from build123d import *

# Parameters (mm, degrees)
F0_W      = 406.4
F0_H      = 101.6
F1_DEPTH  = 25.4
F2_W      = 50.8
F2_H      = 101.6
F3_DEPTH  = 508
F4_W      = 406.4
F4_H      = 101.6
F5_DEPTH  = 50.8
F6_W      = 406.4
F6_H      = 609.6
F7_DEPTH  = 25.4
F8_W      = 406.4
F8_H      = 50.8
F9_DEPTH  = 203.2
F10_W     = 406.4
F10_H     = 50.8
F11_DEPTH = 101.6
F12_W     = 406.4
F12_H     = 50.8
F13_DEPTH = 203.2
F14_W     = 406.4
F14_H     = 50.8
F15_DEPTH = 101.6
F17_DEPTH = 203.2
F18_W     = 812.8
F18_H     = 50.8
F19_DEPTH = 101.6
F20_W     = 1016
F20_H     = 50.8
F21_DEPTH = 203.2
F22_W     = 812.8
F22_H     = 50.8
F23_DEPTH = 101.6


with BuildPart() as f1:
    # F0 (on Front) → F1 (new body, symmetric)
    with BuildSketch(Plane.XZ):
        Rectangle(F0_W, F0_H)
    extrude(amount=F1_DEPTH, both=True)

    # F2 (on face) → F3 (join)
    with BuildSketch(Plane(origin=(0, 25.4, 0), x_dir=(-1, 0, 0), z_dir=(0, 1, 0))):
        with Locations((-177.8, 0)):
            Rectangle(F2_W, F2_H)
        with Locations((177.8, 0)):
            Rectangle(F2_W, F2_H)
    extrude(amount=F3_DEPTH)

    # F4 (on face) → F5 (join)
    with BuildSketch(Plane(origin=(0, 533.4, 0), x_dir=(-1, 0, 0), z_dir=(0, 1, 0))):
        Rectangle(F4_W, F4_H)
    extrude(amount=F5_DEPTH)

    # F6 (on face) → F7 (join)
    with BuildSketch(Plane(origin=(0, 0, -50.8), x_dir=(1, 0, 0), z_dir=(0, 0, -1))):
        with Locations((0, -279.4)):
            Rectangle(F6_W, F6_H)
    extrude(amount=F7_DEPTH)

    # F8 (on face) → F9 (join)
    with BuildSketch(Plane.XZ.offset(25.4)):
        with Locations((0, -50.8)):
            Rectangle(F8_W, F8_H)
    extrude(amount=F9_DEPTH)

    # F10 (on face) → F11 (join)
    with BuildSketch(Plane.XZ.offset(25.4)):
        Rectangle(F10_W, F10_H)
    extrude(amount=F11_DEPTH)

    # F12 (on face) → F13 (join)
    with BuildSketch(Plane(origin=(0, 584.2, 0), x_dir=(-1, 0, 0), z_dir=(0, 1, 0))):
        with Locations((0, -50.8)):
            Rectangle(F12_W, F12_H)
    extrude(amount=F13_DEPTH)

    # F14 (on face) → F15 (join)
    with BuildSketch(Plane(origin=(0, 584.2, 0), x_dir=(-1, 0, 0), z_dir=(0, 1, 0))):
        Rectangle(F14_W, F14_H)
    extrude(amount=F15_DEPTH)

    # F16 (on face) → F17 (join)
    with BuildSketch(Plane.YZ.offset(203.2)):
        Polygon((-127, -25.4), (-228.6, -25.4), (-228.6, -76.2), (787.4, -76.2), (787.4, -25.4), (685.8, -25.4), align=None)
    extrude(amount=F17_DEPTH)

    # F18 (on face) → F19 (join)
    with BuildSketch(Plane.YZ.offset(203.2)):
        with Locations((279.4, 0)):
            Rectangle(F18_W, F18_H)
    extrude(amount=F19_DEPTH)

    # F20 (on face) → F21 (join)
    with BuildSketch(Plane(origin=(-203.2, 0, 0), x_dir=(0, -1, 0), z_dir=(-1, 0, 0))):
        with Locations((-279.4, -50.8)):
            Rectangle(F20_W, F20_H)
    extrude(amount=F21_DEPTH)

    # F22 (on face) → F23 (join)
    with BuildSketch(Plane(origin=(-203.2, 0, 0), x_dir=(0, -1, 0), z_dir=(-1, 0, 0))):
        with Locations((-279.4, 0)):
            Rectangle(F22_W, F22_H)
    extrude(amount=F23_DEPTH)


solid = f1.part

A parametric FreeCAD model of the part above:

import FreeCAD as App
import Part
import Sketcher
from FreeCAD import Vector
Q = App.Units.Quantity


def add_polygon(sketch, points):
    """Adds a closed chain of lines whose ends are joined by coincident constraints."""
    first, n = sketch.GeometryCount, len(points)
    for a, b in zip(points, points[1:] + points[:1]):
        sketch.addGeometry(Part.LineSegment(App.Vector(*a, 0), App.Vector(*b, 0)), False)
    for i in range(n):
        sketch.addConstraint(Sketcher.Constraint("Coincident", first + i, 2, first + (i + 1) % n, 1))

doc = App.newDocument("Part")
body = doc.addObject("PartDesign::Body", "Body")

sketch1 = body.newObject("Sketcher::SketchObject", "Sketch")
sketch1.AttachmentSupport = (doc.getObject("XZ_Plane"), [""])
sketch1.MapMode = "FlatFace"
add_polygon(sketch1, [(-203, 51), (-203, -51), (203, -51), (203, 51)])
sketch1.addConstraint(Sketcher.Constraint("Vertical", 0))
sketch1.addConstraint(Sketcher.Constraint("Horizontal", 1))
sketch1.addConstraint(Sketcher.Constraint("Vertical", 2))
sketch1.addConstraint(Sketcher.Constraint("Horizontal", 3))
sketch1.addConstraint(Sketcher.Constraint("Symmetric", 0, 2, 2, 2, -1, 1))
sketch1.addConstraint(Sketcher.Constraint("DistanceX", 1, 1, 1, 2, Q("16 in")))
sketch1.addConstraint(Sketcher.Constraint("DistanceY", 0, 2, 0, 1, Q("4 in")))
pad1 = body.newObject("PartDesign::Pad", "Pad")
pad1.Profile = sketch1
pad1.Length = Q("2 in")
pad1.Midplane = True

sketch2 = body.newObject("Sketcher::SketchObject", "Sketch001")
sketch2.AttachmentSupport = (doc.getObject("XZ_Plane"), [""])
sketch2.MapMode = "FlatFace"
sketch2.AttachmentOffset = App.Placement(Vector(0, 0, -1 * 25.4), App.Rotation())
add_polygon(sketch2, [(203, 51), (203, -51), (152, -51), (152, 51)])
add_polygon(sketch2, [(-152, 51), (-152, -51), (-203, -51), (-203, 51)])
sketch2.addConstraint(Sketcher.Constraint("Vertical", 0))
sketch2.addConstraint(Sketcher.Constraint("Horizontal", 1))
sketch2.addConstraint(Sketcher.Constraint("Vertical", 2))
sketch2.addConstraint(Sketcher.Constraint("Horizontal", 3))
sketch2.addConstraint(Sketcher.Constraint("Vertical", 4))
sketch2.addConstraint(Sketcher.Constraint("Horizontal", 5))
sketch2.addConstraint(Sketcher.Constraint("Vertical", 6))
sketch2.addConstraint(Sketcher.Constraint("Horizontal", 7))
sketch2.addConstraint(Sketcher.Constraint("Symmetric", 2, 2, 4, 2, -1, 1))
sketch2.addConstraint(Sketcher.Constraint("Symmetric", 0, 2, 6, 2, -1, 1))
sketch2.addConstraint(Sketcher.Constraint("Horizontal", 1, 2, 4, 2))
sketch2.addConstraint(Sketcher.Constraint("DistanceX", 1, 2, 1, 1, Q("2 in")))
sketch2.addConstraint(Sketcher.Constraint("DistanceY", 0, 2, 0, 1, Q("4 in")))
sketch2.addConstraint(Sketcher.Constraint("DistanceX", -1, 1, 0, 2, Q("8 in")))
pad2 = body.newObject("PartDesign::Pad", "Pad001")
pad2.Profile = sketch2
pad2.Length = Q("20 in")
pad2.Reversed = True

sketch3 = body.newObject("Sketcher::SketchObject", "Sketch002")
sketch3.AttachmentSupport = (doc.getObject("XZ_Plane"), [""])
sketch3.MapMode = "FlatFace"
sketch3.AttachmentOffset = App.Placement(Vector(0, 0, -21 * 25.4), App.Rotation())
add_polygon(sketch3, [(203, 51), (203, -51), (-203, -51), (-203, 51)])
sketch3.addConstraint(Sketcher.Constraint("Vertical", 0))
sketch3.addConstraint(Sketcher.Constraint("Horizontal", 1))
sketch3.addConstraint(Sketcher.Constraint("Vertical", 2))
sketch3.addConstraint(Sketcher.Constraint("Horizontal", 3))
sketch3.addConstraint(Sketcher.Constraint("Symmetric", 0, 2, 2, 2, -1, 1))
sketch3.addConstraint(Sketcher.Constraint("DistanceX", 1, 2, 1, 1, Q("16 in")))
sketch3.addConstraint(Sketcher.Constraint("DistanceY", 0, 2, 0, 1, Q("4 in")))
pad3 = body.newObject("PartDesign::Pad", "Pad002")
pad3.Profile = sketch3
pad3.Length = Q("2 in")
pad3.Reversed = True

sketch4 = body.newObject("Sketcher::SketchObject", "Sketch003")
sketch4.AttachmentSupport = (doc.getObject("XY_Plane"), [""])
sketch4.MapMode = "FlatFace"
sketch4.AttachmentOffset = App.Placement(Vector(0, 0, -2 * 25.4), App.Rotation())
add_polygon(sketch4, [(-203, -25), (-203, 584), (203, 584), (203, -25)])
sketch4.addConstraint(Sketcher.Constraint("Vertical", 0))
sketch4.addConstraint(Sketcher.Constraint("Horizontal", 1))
sketch4.addConstraint(Sketcher.Constraint("Vertical", 2))
sketch4.addConstraint(Sketcher.Constraint("Horizontal", 3))
sketch4.addConstraint(Sketcher.Constraint("DistanceX", 1, 1, 1, 2, Q("16 in")))
sketch4.addConstraint(Sketcher.Constraint("DistanceY", 0, 1, 0, 2, Q("24 in")))
sketch4.addConstraint(Sketcher.Constraint("DistanceX", 0, 2, -1, 1, Q("8 in")))
sketch4.addConstraint(Sketcher.Constraint("DistanceY", -1, 1, 0, 2, Q("23 in")))
pad4 = body.newObject("PartDesign::Pad", "Pad003")
pad4.Profile = sketch4
pad4.Length = Q("1 in")
pad4.Reversed = True

sketch5 = body.newObject("Sketcher::SketchObject", "Sketch004")
sketch5.AttachmentSupport = (doc.getObject("XZ_Plane"), [""])
sketch5.MapMode = "FlatFace"
sketch5.AttachmentOffset = App.Placement(Vector(0, 0, 1 * 25.4), App.Rotation())
add_polygon(sketch5, [(-203, -25), (-203, -76), (203, -76), (203, -25)])
sketch5.addConstraint(Sketcher.Constraint("Vertical", 0))
sketch5.addConstraint(Sketcher.Constraint("Horizontal", 1))
sketch5.addConstraint(Sketcher.Constraint("Vertical", 2))
sketch5.addConstraint(Sketcher.Constraint("Horizontal", 3))
sketch5.addConstraint(Sketcher.Constraint("DistanceX", 1, 1, 1, 2, Q("16 in")))
sketch5.addConstraint(Sketcher.Constraint("DistanceY", 0, 2, 0, 1, Q("2 in")))
sketch5.addConstraint(Sketcher.Constraint("DistanceX", 0, 2, -1, 1, Q("8 in")))
sketch5.addConstraint(Sketcher.Constraint("DistanceY", 0, 2, -1, 1, Q("3 in")))
pad5 = body.newObject("PartDesign::Pad", "Pad004")
pad5.Profile = sketch5
pad5.Length = Q("8 in")

sketch6 = body.newObject("Sketcher::SketchObject", "Sketch005")
sketch6.AttachmentSupport = (doc.getObject("XZ_Plane"), [""])
sketch6.MapMode = "FlatFace"
sketch6.AttachmentOffset = App.Placement(Vector(0, 0, 1 * 25.4), App.Rotation())
add_polygon(sketch6, [(-203, 25), (-203, -25), (203, -25), (203, 25)])
sketch6.addConstraint(Sketcher.Constraint("Vertical", 0))
sketch6.addConstraint(Sketcher.Constraint("Horizontal", 1))
sketch6.addConstraint(Sketcher.Constraint("Vertical", 2))
sketch6.addConstraint(Sketcher.Constraint("Horizontal", 3))
sketch6.addConstraint(Sketcher.Constraint("Symmetric", 0, 2, 2, 2, -1, 1))
sketch6.addConstraint(Sketcher.Constraint("DistanceX", 1, 1, 1, 2, Q("16 in")))
sketch6.addConstraint(Sketcher.Constraint("DistanceY", 0, 2, 0, 1, Q("2 in")))
pad6 = body.newObject("PartDesign::Pad", "Pad005")
pad6.Profile = sketch6
pad6.Length = Q("4 in")

sketch7 = body.newObject("Sketcher::SketchObject", "Sketch006")
sketch7.AttachmentSupport = (doc.getObject("XZ_Plane"), [""])
sketch7.MapMode = "FlatFace"
sketch7.AttachmentOffset = App.Placement(Vector(0, 0, -23 * 25.4), App.Rotation())
add_polygon(sketch7, [(203, -25), (203, -76), (-203, -76), (-203, -25)])
sketch7.addConstraint(Sketcher.Constraint("Vertical", 0))
sketch7.addConstraint(Sketcher.Constraint("Horizontal", 1))
sketch7.addConstraint(Sketcher.Constraint("Vertical", 2))
sketch7.addConstraint(Sketcher.Constraint("Horizontal", 3))
sketch7.addConstraint(Sketcher.Constraint("DistanceX", 1, 2, 1, 1, Q("16 in")))
sketch7.addConstraint(Sketcher.Constraint("DistanceY", 0, 2, 0, 1, Q("2 in")))
sketch7.addConstraint(Sketcher.Constraint("DistanceX", -1, 1, 0, 2, Q("8 in")))
sketch7.addConstraint(Sketcher.Constraint("DistanceY", 0, 2, -1, 1, Q("3 in")))
pad7 = body.newObject("PartDesign::Pad", "Pad006")
pad7.Profile = sketch7
pad7.Length = Q("8 in")
pad7.Reversed = True

sketch8 = body.newObject("Sketcher::SketchObject", "Sketch007")
sketch8.AttachmentSupport = (doc.getObject("XZ_Plane"), [""])
sketch8.MapMode = "FlatFace"
sketch8.AttachmentOffset = App.Placement(Vector(0, 0, -23 * 25.4), App.Rotation())
add_polygon(sketch8, [(203, 25), (203, -25), (-203, -25), (-203, 25)])
sketch8.addConstraint(Sketcher.Constraint("Vertical", 0))
sketch8.addConstraint(Sketcher.Constraint("Horizontal", 1))
sketch8.addConstraint(Sketcher.Constraint("Vertical", 2))
sketch8.addConstraint(Sketcher.Constraint("Horizontal", 3))
sketch8.addConstraint(Sketcher.Constraint("Symmetric", 0, 2, 2, 2, -1, 1))
sketch8.addConstraint(Sketcher.Constraint("DistanceX", 1, 2, 1, 1, Q("16 in")))
sketch8.addConstraint(Sketcher.Constraint("DistanceY", 0, 2, 0, 1, Q("2 in")))
pad8 = body.newObject("PartDesign::Pad", "Pad007")
pad8.Profile = sketch8
pad8.Length = Q("4 in")
pad8.Reversed = True

sketch9 = body.newObject("Sketcher::SketchObject", "Sketch008")
sketch9.AttachmentSupport = (doc.getObject("YZ_Plane"), [""])
sketch9.MapMode = "FlatFace"
sketch9.AttachmentOffset = App.Placement(Vector(0, 0, 8 * 25.4), App.Rotation())
add_polygon(sketch9, [(-229, -25), (-229, -76), (787, -76), (787, -25)])
sketch9.addConstraint(Sketcher.Constraint("Vertical", 0))
sketch9.addConstraint(Sketcher.Constraint("Horizontal", 1))
sketch9.addConstraint(Sketcher.Constraint("Vertical", 2))
sketch9.addConstraint(Sketcher.Constraint("Horizontal", 3))
sketch9.addConstraint(Sketcher.Constraint("DistanceX", 1, 1, 1, 2, Q("40 in")))
sketch9.addConstraint(Sketcher.Constraint("DistanceY", 0, 2, 0, 1, Q("2 in")))
sketch9.addConstraint(Sketcher.Constraint("DistanceX", 0, 2, -1, 1, Q("9 in")))
sketch9.addConstraint(Sketcher.Constraint("DistanceY", 0, 2, -1, 1, Q("3 in")))
pad9 = body.newObject("PartDesign::Pad", "Pad008")
pad9.Profile = sketch9
pad9.Length = Q("8 in")

sketch10 = body.newObject("Sketcher::SketchObject", "Sketch009")
sketch10.AttachmentSupport = (doc.getObject("YZ_Plane"), [""])
sketch10.MapMode = "FlatFace"
sketch10.AttachmentOffset = App.Placement(Vector(0, 0, 8 * 25.4), App.Rotation())
add_polygon(sketch10, [(-127, 25), (-127, -25), (686, -25), (686, 25)])
sketch10.addConstraint(Sketcher.Constraint("Vertical", 0))
sketch10.addConstraint(Sketcher.Constraint("Horizontal", 1))
sketch10.addConstraint(Sketcher.Constraint("Vertical", 2))
sketch10.addConstraint(Sketcher.Constraint("Horizontal", 3))
sketch10.addConstraint(Sketcher.Constraint("DistanceX", 1, 1, 1, 2, Q("32 in")))
sketch10.addConstraint(Sketcher.Constraint("DistanceY", 0, 2, 0, 1, Q("2 in")))
sketch10.addConstraint(Sketcher.Constraint("DistanceX", 0, 2, -1, 1, Q("5 in")))
sketch10.addConstraint(Sketcher.Constraint("DistanceY", 0, 2, -1, 1, Q("1 in")))
pad10 = body.newObject("PartDesign::Pad", "Pad009")
pad10.Profile = sketch10
pad10.Length = Q("4 in")

sketch11 = body.newObject("Sketcher::SketchObject", "Sketch010")
sketch11.AttachmentSupport = (doc.getObject("YZ_Plane"), [""])
sketch11.MapMode = "FlatFace"
sketch11.AttachmentOffset = App.Placement(Vector(0, 0, -8 * 25.4), App.Rotation())
add_polygon(sketch11, [(787, -25), (787, -76), (-229, -76), (-229, -25)])
sketch11.addConstraint(Sketcher.Constraint("Vertical", 0))
sketch11.addConstraint(Sketcher.Constraint("Horizontal", 1))
sketch11.addConstraint(Sketcher.Constraint("Vertical", 2))
sketch11.addConstraint(Sketcher.Constraint("Horizontal", 3))
sketch11.addConstraint(Sketcher.Constraint("DistanceX", 1, 2, 1, 1, Q("40 in")))
sketch11.addConstraint(Sketcher.Constraint("DistanceY", 0, 2, 0, 1, Q("2 in")))
sketch11.addConstraint(Sketcher.Constraint("DistanceX", -1, 1, 0, 2, Q("31 in")))
sketch11.addConstraint(Sketcher.Constraint("DistanceY", 0, 2, -1, 1, Q("3 in")))
pad11 = body.newObject("PartDesign::Pad", "Pad010")
pad11.Profile = sketch11
pad11.Length = Q("8 in")
pad11.Reversed = True

sketch12 = body.newObject("Sketcher::SketchObject", "Sketch011")
sketch12.AttachmentSupport = (doc.getObject("YZ_Plane"), [""])
sketch12.MapMode = "FlatFace"
sketch12.AttachmentOffset = App.Placement(Vector(0, 0, -8 * 25.4), App.Rotation())
add_polygon(sketch12, [(686, 25), (686, -25), (-127, -25), (-127, 25)])
sketch12.addConstraint(Sketcher.Constraint("Vertical", 0))
sketch12.addConstraint(Sketcher.Constraint("Horizontal", 1))
sketch12.addConstraint(Sketcher.Constraint("Vertical", 2))
sketch12.addConstraint(Sketcher.Constraint("Horizontal", 3))
sketch12.addConstraint(Sketcher.Constraint("DistanceX", 1, 2, 1, 1, Q("32 in")))
sketch12.addConstraint(Sketcher.Constraint("DistanceY", 0, 2, 0, 1, Q("2 in")))
sketch12.addConstraint(Sketcher.Constraint("DistanceX", -1, 1, 0, 2, Q("27 in")))
sketch12.addConstraint(Sketcher.Constraint("DistanceY", 0, 2, -1, 1, Q("1 in")))
pad12 = body.newObject("PartDesign::Pad", "Pad011")
pad12.Profile = sketch12
pad12.Length = Q("4 in")
pad12.Reversed = True

doc.recompute()
